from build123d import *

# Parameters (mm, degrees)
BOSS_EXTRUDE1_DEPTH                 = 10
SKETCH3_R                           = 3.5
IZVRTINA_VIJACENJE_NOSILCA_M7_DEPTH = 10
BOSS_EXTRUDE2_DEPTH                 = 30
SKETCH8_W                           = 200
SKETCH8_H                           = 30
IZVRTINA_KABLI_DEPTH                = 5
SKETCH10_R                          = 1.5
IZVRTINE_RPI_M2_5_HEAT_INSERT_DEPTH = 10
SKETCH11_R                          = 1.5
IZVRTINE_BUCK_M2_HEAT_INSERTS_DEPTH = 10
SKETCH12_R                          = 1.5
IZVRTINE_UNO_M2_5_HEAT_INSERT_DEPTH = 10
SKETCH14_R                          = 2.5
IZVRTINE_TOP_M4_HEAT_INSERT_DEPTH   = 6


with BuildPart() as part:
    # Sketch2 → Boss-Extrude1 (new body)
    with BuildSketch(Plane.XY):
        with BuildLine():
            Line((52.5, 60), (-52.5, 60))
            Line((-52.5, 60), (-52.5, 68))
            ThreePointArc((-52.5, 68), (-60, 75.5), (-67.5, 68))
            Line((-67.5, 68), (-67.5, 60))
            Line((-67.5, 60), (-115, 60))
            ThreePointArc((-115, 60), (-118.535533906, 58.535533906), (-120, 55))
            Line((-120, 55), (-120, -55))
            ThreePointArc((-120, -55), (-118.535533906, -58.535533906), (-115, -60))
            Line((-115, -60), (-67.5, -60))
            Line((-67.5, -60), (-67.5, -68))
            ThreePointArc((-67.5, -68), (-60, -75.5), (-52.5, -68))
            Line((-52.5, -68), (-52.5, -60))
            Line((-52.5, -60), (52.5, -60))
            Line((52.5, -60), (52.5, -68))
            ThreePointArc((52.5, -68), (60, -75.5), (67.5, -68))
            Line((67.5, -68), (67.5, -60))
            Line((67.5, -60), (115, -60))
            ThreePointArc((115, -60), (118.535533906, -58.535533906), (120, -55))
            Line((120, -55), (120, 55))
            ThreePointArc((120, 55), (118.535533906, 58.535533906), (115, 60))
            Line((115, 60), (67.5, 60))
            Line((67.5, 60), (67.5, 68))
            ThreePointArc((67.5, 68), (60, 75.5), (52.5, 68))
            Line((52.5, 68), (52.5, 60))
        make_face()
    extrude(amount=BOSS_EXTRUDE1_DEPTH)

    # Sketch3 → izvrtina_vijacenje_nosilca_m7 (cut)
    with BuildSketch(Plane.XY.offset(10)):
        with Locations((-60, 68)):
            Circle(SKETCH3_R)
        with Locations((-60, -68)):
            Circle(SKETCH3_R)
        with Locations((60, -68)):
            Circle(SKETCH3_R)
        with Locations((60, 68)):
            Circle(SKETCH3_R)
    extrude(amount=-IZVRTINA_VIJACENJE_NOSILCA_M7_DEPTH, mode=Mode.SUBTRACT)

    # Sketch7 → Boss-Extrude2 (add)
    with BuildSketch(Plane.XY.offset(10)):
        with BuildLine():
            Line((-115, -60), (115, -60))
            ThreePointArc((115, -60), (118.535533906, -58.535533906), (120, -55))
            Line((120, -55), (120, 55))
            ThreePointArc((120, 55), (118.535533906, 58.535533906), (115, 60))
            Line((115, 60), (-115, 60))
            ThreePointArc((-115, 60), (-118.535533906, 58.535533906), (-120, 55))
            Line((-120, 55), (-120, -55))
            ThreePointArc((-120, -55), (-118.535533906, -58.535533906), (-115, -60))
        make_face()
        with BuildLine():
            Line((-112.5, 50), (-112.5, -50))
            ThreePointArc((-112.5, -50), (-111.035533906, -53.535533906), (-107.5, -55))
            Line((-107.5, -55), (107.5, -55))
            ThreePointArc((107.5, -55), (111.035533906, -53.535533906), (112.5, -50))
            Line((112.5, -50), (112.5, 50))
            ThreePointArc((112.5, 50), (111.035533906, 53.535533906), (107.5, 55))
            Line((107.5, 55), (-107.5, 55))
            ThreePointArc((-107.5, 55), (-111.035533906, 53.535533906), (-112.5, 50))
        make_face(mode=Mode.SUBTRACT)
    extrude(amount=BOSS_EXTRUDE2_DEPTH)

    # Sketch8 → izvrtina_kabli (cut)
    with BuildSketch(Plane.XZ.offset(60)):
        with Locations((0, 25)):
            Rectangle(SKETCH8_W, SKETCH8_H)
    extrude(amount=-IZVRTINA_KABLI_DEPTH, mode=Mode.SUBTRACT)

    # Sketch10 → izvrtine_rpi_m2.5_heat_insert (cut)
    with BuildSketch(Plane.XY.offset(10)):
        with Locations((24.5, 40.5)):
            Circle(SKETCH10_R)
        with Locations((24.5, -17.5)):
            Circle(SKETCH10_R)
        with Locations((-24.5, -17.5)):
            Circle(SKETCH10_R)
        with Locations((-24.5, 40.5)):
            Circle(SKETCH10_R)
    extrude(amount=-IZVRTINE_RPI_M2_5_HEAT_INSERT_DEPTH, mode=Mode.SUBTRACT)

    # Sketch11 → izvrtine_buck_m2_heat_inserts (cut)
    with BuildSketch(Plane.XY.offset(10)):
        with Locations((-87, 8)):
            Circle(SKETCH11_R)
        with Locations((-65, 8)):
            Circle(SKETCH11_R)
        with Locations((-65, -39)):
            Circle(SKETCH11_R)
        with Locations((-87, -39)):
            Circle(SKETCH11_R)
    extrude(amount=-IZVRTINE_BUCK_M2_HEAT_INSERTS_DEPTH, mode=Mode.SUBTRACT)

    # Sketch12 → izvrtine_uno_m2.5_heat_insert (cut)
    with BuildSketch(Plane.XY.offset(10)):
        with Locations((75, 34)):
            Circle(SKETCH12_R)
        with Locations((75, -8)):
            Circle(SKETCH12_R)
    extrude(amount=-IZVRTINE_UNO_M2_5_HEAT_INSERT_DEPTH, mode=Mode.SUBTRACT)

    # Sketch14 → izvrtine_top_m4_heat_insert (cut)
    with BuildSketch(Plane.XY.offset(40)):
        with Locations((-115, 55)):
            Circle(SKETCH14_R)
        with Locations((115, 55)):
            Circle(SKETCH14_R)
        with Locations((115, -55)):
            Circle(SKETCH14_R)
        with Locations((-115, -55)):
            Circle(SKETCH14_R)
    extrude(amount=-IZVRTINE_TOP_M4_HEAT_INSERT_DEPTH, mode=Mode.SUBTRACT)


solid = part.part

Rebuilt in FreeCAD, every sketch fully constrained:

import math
import FreeCAD as App
import Part
import Sketcher

V = App.Vector
Q = App.Units.Quantity

doc = App.newDocument("Part")
params = doc.addObject("Spreadsheet::Sheet", "Params")
for row, (alias, value) in enumerate([
    ("sketch1_radius", "5 mm"),
    ("sketch1_radius2", "7.5 mm"),
    ("sketch1_width", "105 mm"),
    ("sketch1_height", "8 mm"),
    ("sketch1_height2", "110 mm"),
    ("pad1_length", "10 mm"),
    ("sketch2_diameter", "7 mm"),
    ("pocket1_length", "10 mm"),
    ("sketch3_radius", "5 mm"),
    ("sketch3_width", "230 mm"),
    ("sketch3_width2", "215 mm"),
    ("sketch3_height", "110 mm"),
    ("pad2_length", "30 mm"),
    ("sketch4_width", "200 mm"),
    ("sketch4_height", "30 mm"),
    ("pocket2_length", "5 mm"),
    ("sketch5_diameter", "3 mm"),
    ("pocket3_length", "10 mm"),
    ("sketch6_diameter", "3 mm"),
    ("pocket4_length", "10 mm"),
    ("sketch7_diameter", "3 mm"),
    ("pocket5_length", "10 mm"),
    ("sketch8_diameter", "5 mm"),
    ("pocket6_length", "6 mm"),
], start=1):
    params.set(f"A{row}", alias)
    params.set(f"B{row}", "=" + value)
    params.setAlias(f"B{row}", alias)

body = doc.addObject("PartDesign::Body", "Body")

sketch1 = body.newObject("Sketcher::SketchObject", "Sketch")
sketch1.AttachmentSupport = (doc.getObject("XY_Plane"), [""])
sketch1.MapMode = "FlatFace"
sketch1.addGeometry([
    Part.LineSegment(V(52, 60, 0), V(-52, 60, 0)),
    Part.LineSegment(V(-52, 60, 0), V(-52, 68, 0)),
    Part.ArcOfCircle(Part.Circle(V(-60, 68, 0), V(0, 0, 1), 8), math.radians(0), math.radians(180)),
    Part.LineSegment(V(-68, 68, 0), V(-68, 60, 0)),
    Part.LineSegment(V(-68, 60, 0), V(-115, 60, 0)),
    Part.ArcOfCircle(Part.Circle(V(-115, 55, 0), V(0, 0, 1), 5), math.radians(90), math.radians(180)),
    Part.LineSegment(V(-120, 55, 0), V(-120, -55, 0)),
    Part.ArcOfCircle(Part.Circle(V(-115, -55, 0), V(0, 0, 1), 5), math.radians(180), math.radians(270)),
    Part.LineSegment(V(-115, -60, 0), V(-68, -60, 0)),
    Part.LineSegment(V(-68, -60, 0), V(-68, -68, 0)),
    Part.ArcOfCircle(Part.Circle(V(-60, -68, 0), V(0, 0, 1), 8), math.radians(180), math.radians(360)),
    Part.LineSegment(V(-52, -68, 0), V(-52, -60, 0)),
    Part.LineSegment(V(-52, -60, 0), V(52, -60, 0)),
    Part.LineSegment(V(52, -60, 0), V(52, -68, 0)),
    Part.ArcOfCircle(Part.Circle(V(60, -68, 0), V(0, 0, 1), 8), math.radians(180), math.radians(360)),
    Part.LineSegment(V(68, -68, 0), V(68, -60, 0)),
    Part.LineSegment(V(68, -60, 0), V(115, -60, 0)),
    Part.ArcOfCircle(Part.Circle(V(115, -55, 0), V(0, 0, 1), 5), math.radians(-90), math.radians(0)),
    Part.LineSegment(V(120, -55, 0), V(120, 55, 0)),
    Part.ArcOfCircle(Part.Circle(V(115, 55, 0), V(0, 0, 1), 5), math.radians(0), math.radians(90)),
    Part.LineSegment(V(115, 60, 0), V(68, 60, 0)),
    Part.LineSegment(V(68, 60, 0), V(68, 68, 0)),
    Part.ArcOfCircle(Part.Circle(V(60, 68, 0), V(0, 0, 1), 8), math.radians(0), math.radians(180)),
    Part.LineSegment(V(52, 68, 0), V(52, 60, 0)),
], False)
sketch1.addConstraint([
    Sketcher.Constraint("Coincident", 0, 2, 1, 1),
    Sketcher.Constraint("Tangent", 1, 2, 2, 1),
    Sketcher.Constraint("Tangent", 2, 2, 3, 1),
    Sketcher.Constraint("Coincident", 3, 2, 4, 1),
    Sketcher.Constraint("Tangent", 4, 2, 5, 1),
    Sketcher.Constraint("Tangent", 5, 2, 6, 1),
    Sketcher.Constraint("Tangent", 6, 2, 7, 1),
    Sketcher.Constraint("Tangent", 7, 2, 8, 1),
    Sketcher.Constraint("Coincident", 8, 2, 9, 1),
    Sketcher.Constraint("Tangent", 9, 2, 10, 1),
    Sketcher.Constraint("Tangent", 10, 2, 11, 1),
    Sketcher.Constraint("Coincident", 11, 2, 12, 1),
    Sketcher.Constraint("Coincident", 12, 2, 13, 1),
    Sketcher.Constraint("Tangent", 13, 2, 14, 1),
    Sketcher.Constraint("Tangent", 14, 2, 15, 1),
    Sketcher.Constraint("Coincident", 15, 2, 16, 1),
    Sketcher.Constraint("Tangent", 16, 2, 17, 1),
    Sketcher.Constraint("Tangent", 17, 2, 18, 1),
    Sketcher.Constraint("Tangent", 18, 2, 19, 1),
    Sketcher.Constraint("Tangent", 19, 2, 20, 1),
    Sketcher.Constraint("Coincident", 20, 2, 21, 1),
    Sketcher.Constraint("Tangent", 21, 2, 22, 1),
    Sketcher.Constraint("Tangent", 22, 2, 23, 1),
    Sketcher.Constraint("Coincident", 23, 2, 0, 1),
    Sketcher.Constraint("Horizontal", 0),
    Sketcher.Constraint("Vertical", 1),
    Sketcher.Constraint("Vertical", 3),
    Sketcher.Constraint("Horizontal", 4),
    Sketcher.Constraint("Vertical", 6),
    Sketcher.Constraint("Horizontal", 8),
    Sketcher.Constraint("Vertical", 9),
    Sketcher.Constraint("Vertical", 11),
    Sketcher.Constraint("Horizontal", 12),
    Sketcher.Constraint("Vertical", 13),
    Sketcher.Constraint("Vertical", 15),
    Sketcher.Constraint("Horizontal", 16),
    Sketcher.Constraint("Vertical", 18),
    Sketcher.Constraint("Horizontal", 20),
    Sketcher.Constraint("Vertical", 21),
    Sketcher.Constraint("Vertical", 23),
    Sketcher.Constraint("Equal", 5, 7),
    Sketcher.Constraint("Equal", 2, 10),
    Sketcher.Constraint("Equal", 10, 14),
    Sketcher.Constraint("Equal", 7, 17),
    Sketcher.Constraint("Equal", 17, 19),
    Sketcher.Constraint("Equal", 14, 22),
    Sketcher.Constraint("Symmetric", 2, 3, 14, 3, -1, 1),
    Sketcher.Constraint("Symmetric", 5, 3, 17, 3, -1, 1),
    Sketcher.Constraint("Symmetric", 10, 3, 22, 3, -1, 1),
    Sketcher.Constraint("Symmetric", 10, 3, 14, 3, -2),
    Sketcher.Constraint("Horizontal", 7, 3, 17, 3),
    Sketcher.Constraint("Horizontal", 5, 3, 19, 3),
    Sketcher.Constraint("Horizontal", 0, 2, 3, 2),
    Sketcher.Constraint("Horizontal", 8, 2, 11, 2),
    Sketcher.Constraint("Radius", 5, Q("5 mm")),
    Sketcher.Constraint("Radius", 2, Q("7.5 mm")),
    Sketcher.Constraint("DistanceX", 0, 2, 0, 1, Q("105 mm")),
    Sketcher.Constraint("DistanceY", 1, 1, 1, 2, Q("8 mm")),
    Sketcher.Constraint("DistanceY", 6, 2, 6, 1, Q("110 mm")),
    Sketcher.Constraint("DistanceX", 4, 2, 4, 1, Q("47.5 mm")),
])
sketch1.setExpression("Constraints[54]", "Params.sketch1_radius")
sketch1.setExpression("Constraints[55]", "Params.sketch1_radius2")
sketch1.setExpression("Constraints[56]", "Params.sketch1_width")
sketch1.setExpression("Constraints[57]", "Params.sketch1_height")
sketch1.setExpression("Constraints[58]", "Params.sketch1_height2")
pad1 = body.newObject("PartDesign::Pad", "Pad")
pad1.Profile = sketch1
pad1.setExpression("Length", "Params.pad1_length")

sketch2 = body.newObject("Sketcher::SketchObject", "Sketch001")
sketch2.AttachmentSupport = (doc.getObject("XY_Plane"), [""])
sketch2.MapMode = "FlatFace"
sketch2.AttachmentOffset = App.Placement(V(0, 0, 10), App.Rotation())
sketch2.addGeometry([
    Part.Circle(V(-60, 68, 0), V(0, 0, 1), 3.5),
    Part.Circle(V(-60, -68, 0), V(0, 0, 1), 3.5),
    Part.Circle(V(60, -68, 0), V(0, 0, 1), 3.5),
    Part.Circle(V(60, 68, 0), V(0, 0, 1), 3.5),
], False)
sketch2.addConstraint([
    Sketcher.Constraint("Equal", 0, 1),
    Sketcher.Constraint("Equal", 1, 2),
    Sketcher.Constraint("Equal", 2, 3),
    Sketcher.Constraint("Symmetric", 0, 3, 2, 3, -1, 1),
    Sketcher.Constraint("Symmetric", 1, 3, 3, 3, -1, 1),
    Sketcher.Constraint("Symmetric", 1, 3, 2, 3, -2),
    Sketcher.Constraint("Diameter", 0, Q("7 mm")),
    Sketcher.Constraint("DistanceX", 0, 3, -1, 1, Q("60 mm")),
    Sketcher.Constraint("DistanceY", -1, 1, 0, 3, Q("68 mm")),
])
sketch2.setExpression("Constraints[6]", "Params.sketch2_diameter")
pocket1 = body.newObject("PartDesign::Pocket", "Pocket")
pocket1.Profile = sketch2
pocket1.setExpression("Length", "Params.pocket1_length")

sketch3 = body.newObject("Sketcher::SketchObject", "Sketch002")
sketch3.AttachmentSupport = (doc.getObject("XY_Plane"), [""])
sketch3.MapMode = "FlatFace"
sketch3.AttachmentOffset = App.Placement(V(0, 0, 10), App.Rotation())
sketch3.addGeometry([
    Part.LineSegment(V(-115, -60, 0), V(115, -60, 0)),
    Part.ArcOfCircle(Part.Circle(V(115, -55, 0), V(0, 0, 1), 5), math.radians(-90), math.radians(0)),
    Part.LineSegment(V(120, -55, 0), V(120, 55, 0)),
    Part.ArcOfCircle(Part.Circle(V(115, 55, 0), V(0, 0, 1), 5), math.radians(0), math.radians(90)),
    Part.LineSegment(V(115, 60, 0), V(-115, 60, 0)),
    Part.ArcOfCircle(Part.Circle(V(-115, 55, 0), V(0, 0, 1), 5), math.radians(90), math.radians(180)),
    Part.LineSegment(V(-120, 55, 0), V(-120, -55, 0)),
    Part.ArcOfCircle(Part.Circle(V(-115, -55, 0), V(0, 0, 1), 5), math.radians(180), math.radians(270)),
    Part.LineSegment(V(-112, -50, 0), V(-112, 50, 0)),
    Part.ArcOfCircle(Part.Circle(V(-108, 50, 0), V(0, 0, 1), 5), math.radians(90), math.radians(180)),
    Part.LineSegment(V(-108, 55, 0), V(108, 55, 0)),
    Part.ArcOfCircle(Part.Circle(V(108, 50, 0), V(0, 0, 1), 5), math.radians(0), math.radians(90)),
    Part.LineSegment(V(112, 50, 0), V(112, -50, 0)),
    Part.ArcOfCircle(Part.Circle(V(108, -50, 0), V(0, 0, 1), 5), math.radians(-90), math.radians(0)),
    Part.LineSegment(V(108, -55, 0), V(-108, -55, 0)),
    Part.ArcOfCircle(Part.Circle(V(-108, -50, 0), V(0, 0, 1), 5), math.radians(180), math.radians(270)),
], False)
sketch3.addConstraint([
    Sketcher.Constraint("Tangent", 0, 2, 1, 1),
    Sketcher.Constraint("Tangent", 1, 2, 2, 1),
    Sketcher.Constraint("Tangent", 2, 2, 3, 1),
    Sketcher.Constraint("Tangent", 3, 2, 4, 1),
    Sketcher.Constraint("Tangent", 4, 2, 5, 1),
    Sketcher.Constraint("Tangent", 5, 2, 6, 1),
    Sketcher.Constraint("Tangent", 6, 2, 7, 1),
    Sketcher.Constraint("Tangent", 7, 2, 0, 1),
    Sketcher.Constraint("Tangent", 8, 2, 9, 2),
    Sketcher.Constraint("Tangent", 9, 1, 10, 1),
    Sketcher.Constraint("Tangent", 10, 2, 11, 2),
    Sketcher.Constraint("Tangent", 11, 1, 12, 1),
    Sketcher.Constraint("Tangent", 12, 2, 13, 2),
    Sketcher.Constraint("Tangent", 13, 1, 14, 1),
    Sketcher.Constraint("Tangent", 14, 2, 15, 2),
    Sketcher.Constraint("Tangent", 15, 1, 8, 1),
    Sketcher.Constraint("Horizontal", 0),
    Sketcher.Constraint("Vertical", 2),
    Sketcher.Constraint("Horizontal", 4),
    Sketcher.Constraint("Vertical", 6),
    Sketcher.Constraint("Vertical", 8),
    Sketcher.Constraint("Horizontal", 10),
    Sketcher.Constraint("Vertical", 12),
    Sketcher.Constraint("Horizontal", 14),
    Sketcher.Constraint("Equal", 1, 3),
    Sketcher.Constraint("Equal", 3, 5),
    Sketcher.Constraint("Equal", 5, 7),
    Sketcher.Constraint("Equal", 7, 9),
    Sketcher.Constraint("Equal", 9, 11),
    Sketcher.Constraint("Equal", 11, 13),
    Sketcher.Constraint("Equal", 13, 15),
    Sketcher.Constraint("Symmetric", 1, 3, 5, 3, -1, 1),
    Sketcher.Constraint("Symmetric", 9, 3, 13, 3, -1, 1),
    Sketcher.Constraint("Horizontal", 5, 2, 9, 1),
    Sketcher.Constraint("Radius", 1, Q("5 mm")),
    Sketcher.Constraint("DistanceX", 0, 1, 0, 2, Q("230 mm")),
    Sketcher.Constraint("DistanceX", 10, 1, 10, 2, Q("215 mm")),
    Sketcher.Constraint("DistanceY", 2, 1, 2, 2, Q("110 mm")),
])
sketch3.setExpression("Constraints[34]", "Params.sketch3_radius")
sketch3.setExpression("Constraints[35]", "Params.sketch3_width")
sketch3.setExpression("Constraints[36]", "Params.sketch3_width2")
sketch3.setExpression("Constraints[37]", "Params.sketch3_height")
pad2 = body.newObject("PartDesign::Pad", "Pad001")
pad2.Profile = sketch3
pad2.setExpression("Length", "Params.pad2_length")

sketch4 = body.newObject("Sketcher::SketchObject", "Sketch003")
sketch4.AttachmentSupport = (doc.getObject("XZ_Plane"), [""])
sketch4.MapMode = "FlatFace"
sketch4.AttachmentOffset = App.Placement(V(0, 0, 60), App.Rotation())
sketch4.addGeometry([
    Part.LineSegment(V(-100, 40, 0), V(-100, 10, 0)),
    Part.LineSegment(V(-100, 10, 0), V(100, 10, 0)),
    Part.LineSegment(V(100, 10, 0), V(100, 40, 0)),
    Part.LineSegment(V(100, 40, 0), V(-100, 40, 0)),
], False)
sketch4.addConstraint([
    Sketcher.Constraint("Coincident", 0, 2, 1, 1),
    Sketcher.Constraint("Coincident", 1, 2, 2, 1),
    Sketcher.Constraint("Coincident", 2, 2, 3, 1),
    Sketcher.Constraint("Coincident", 3, 2, 0, 1),
    Sketcher.Constraint("Vertical", 0),
    Sketcher.Constraint("Horizontal", 1),
    Sketcher.Constraint("Vertical", 2),
    Sketcher.Constraint("Horizontal", 3),
    Sketcher.Constraint("DistanceX", 1, 1, 1, 2, Q("200 mm")),
    Sketcher.Constraint("DistanceY", 0, 2, 0, 1, Q("30 mm")),
    Sketcher.Constraint("DistanceX", 0, 2, -1, 1, Q("100 mm")),
    Sketcher.Constraint("DistanceY", -1, 1, 0, 2, Q("10 mm")),
])
sketch4.setExpression("Constraints[8]", "Params.sketch4_width")
sketch4.setExpression("Constraints[9]", "Params.sketch4_height")
pocket2 = body.newObject("PartDesign::Pocket", "Pocket001")
pocket2.Profile = sketch4
pocket2.setExpression("Length", "Params.pocket2_length")

sketch5 = body.newObject("Sketcher::SketchObject", "Sketch004")
sketch5.AttachmentSupport = (doc.getObject("XY_Plane"), [""])
sketch5.MapMode = "FlatFace"
sketch5.AttachmentOffset = App.Placement(V(0, 0, 10), App.Rotation())
sketch5.addGeometry([
    Part.Circle(V(24.5, 40.5, 0), V(0, 0, 1), 1.5),
    Part.Circle(V(24.5, -17.5, 0), V(0, 0, 1), 1.5),
    Part.Circle(V(-24.5, -17.5, 0), V(0, 0, 1), 1.5),
    Part.Circle(V(-24.5, 40.5, 0), V(0, 0, 1), 1.5),
], False)
sketch5.addConstraint([
    Sketcher.Constraint("Equal", 0, 1),
    Sketcher.Constraint("Equal", 1, 2),
    Sketcher.Constraint("Equal", 2, 3),
    Sketcher.Constraint("Symmetric", 1, 3, 2, 3, -2),
    Sketcher.Constraint("Symmetric", 0, 3, 3, 3, -2),
    Sketcher.Constraint("Vertical", 0, 3, 1, 3),
    Sketcher.Constraint("Diameter", 0, Q("3 mm")),
    Sketcher.Constraint("DistanceY", 1, 3, 0, 3, Q("58 mm")),
    Sketcher.Constraint("DistanceX", 2, 3, 1, 3, Q("49 mm")),
    Sketcher.Constraint("DistanceY", -1, 1, 0, 3, Q("40.5 mm")),
])
sketch5.setExpression("Constraints[6]", "Params.sketch5_diameter")
pocket3 = body.newObject("PartDesign::Pocket", "Pocket002")
pocket3.Profile = sketch5
pocket3.setExpression("Length", "Params.pocket3_length")

sketch6 = body.newObject("Sketcher::SketchObject", "Sketch005")
sketch6.AttachmentSupport = (doc.getObject("XY_Plane"), [""])
sketch6.MapMode = "FlatFace"
sketch6.AttachmentOffset = App.Placement(V(0, 0, 10), App.Rotation())
sketch6.addGeometry([
    Part.Circle(V(-87, 8, 0), V(0, 0, 1), 1.5),
    Part.Circle(V(-65, 8, 0), V(0, 0, 1), 1.5),
    Part.Circle(V(-65, -39, 0), V(0, 0, 1), 1.5),
    Part.Circle(V(-87, -39, 0), V(0, 0, 1), 1.5),
], False)
sketch6.addConstraint([
    Sketcher.Constraint("Equal", 0, 1),
    Sketcher.Constraint("Equal", 1, 2),
    Sketcher.Constraint("Equal", 2, 3),
    Sketcher.Constraint("Horizontal", 0, 3, 1, 3),
    Sketcher.Constraint("Horizontal", 2, 3, 3, 3),
    Sketcher.Constraint("Vertical", 1, 3, 2, 3),
    Sketcher.Constraint("Vertical", 0, 3, 3, 3),
    Sketcher.Constraint("Diameter", 0, Q("3 mm")),
    Sketcher.Constraint("DistanceX", 0, 3, -1, 1, Q("87 mm")),
    Sketcher.Constraint("DistanceY", -1, 1, 0, 3, Q("8 mm")),
    Sketcher.Constraint("DistanceX", 1, 3, -1, 1, Q("65 mm")),
    Sketcher.Constraint("DistanceY", 2, 3, -1, 1, Q("39 mm")),
])
sketch6.setExpression("Constraints[7]", "Params.sketch6_diameter")
pocket4 = body.newObject("PartDesign::Pocket", "Pocket003")
pocket4.Profile = sketch6
pocket4.setExpression("Length", "Params.pocket4_length")

sketch7 = body.newObject("Sketcher::SketchObject", "Sketch006")
sketch7.AttachmentSupport = (doc.getObject("XY_Plane"), [""])
sketch7.MapMode = "FlatFace"
sketch7.AttachmentOffset = App.Placement(V(0, 0, 10), App.Rotation())
sketch7.addGeometry([
    Part.Circle(V(75, 34, 0), V(0, 0, 1), 1.5),
    Part.Circle(V(75, -8, 0), V(0, 0, 1), 1.5),
], False)
sketch7.addConstraint([
    Sketcher.Constraint("Equal", 0, 1),
    Sketcher.Constraint("Vertical", 0, 3, 1, 3),
    Sketcher.Constraint("Diameter", 0, Q("3 mm")),
    Sketcher.Constraint("DistanceX", -1, 1, 0, 3, Q("75 mm")),
    Sketcher.Constraint("DistanceY", -1, 1, 0, 3, Q("34 mm")),
    Sketcher.Constraint("DistanceY", 1, 3, -1, 1, Q("8 mm")),
])
sketch7.setExpression("Constraints[2]", "Params.sketch7_diameter")
pocket5 = body.newObject("PartDesign::Pocket", "Pocket004")
pocket5.Profile = sketch7
pocket5.setExpression("Length", "Params.pocket5_length")

sketch8 = body.newObject("Sketcher::SketchObject", "Sketch007")
sketch8.AttachmentSupport = (doc.getObject("XY_Plane"), [""])
sketch8.MapMode = "FlatFace"
sketch8.AttachmentOffset = App.Placement(V(0, 0, 40), App.Rotation())
sketch8.addGeometry([
    Part.Circle(V(-115, 55, 0), V(0, 0, 1), 2.5),
    Part.Circle(V(115, 55, 0), V(0, 0, 1), 2.5),
    Part.Circle(V(115, -55, 0), V(0, 0, 1), 2.5),
    Part.Circle(V(-115, -55, 0), V(0, 0, 1), 2.5),
], False)
sketch8.addConstraint([
    Sketcher.Constraint("Equal", 0, 1),
    Sketcher.Constraint("Equal", 1, 2),
    Sketcher.Constraint("Equal", 2, 3),
    Sketcher.Constraint("Symmetric", 0, 3, 2, 3, -1, 1),
    Sketcher.Constraint("Symmetric", 1, 3, 3, 3, -1, 1),
    Sketcher.Constraint("Symmetric", 0, 3, 1, 3, -2),
    Sketcher.Constraint("Diameter", 0, Q("5 mm")),
    Sketcher.Constraint("DistanceX", 0, 3, -1, 1, Q("115 mm")),
    Sketcher.Constraint("DistanceY", -1, 1, 0, 3, Q("55 mm")),
])
sketch8.setExpression("Constraints[6]", "Params.sketch8_diameter")
pocket6 = body.newObject("PartDesign::Pocket", "Pocket005")
pocket6.Profile = sketch8
pocket6.setExpression("Length", "Params.pocket6_length")

doc.recompute()
